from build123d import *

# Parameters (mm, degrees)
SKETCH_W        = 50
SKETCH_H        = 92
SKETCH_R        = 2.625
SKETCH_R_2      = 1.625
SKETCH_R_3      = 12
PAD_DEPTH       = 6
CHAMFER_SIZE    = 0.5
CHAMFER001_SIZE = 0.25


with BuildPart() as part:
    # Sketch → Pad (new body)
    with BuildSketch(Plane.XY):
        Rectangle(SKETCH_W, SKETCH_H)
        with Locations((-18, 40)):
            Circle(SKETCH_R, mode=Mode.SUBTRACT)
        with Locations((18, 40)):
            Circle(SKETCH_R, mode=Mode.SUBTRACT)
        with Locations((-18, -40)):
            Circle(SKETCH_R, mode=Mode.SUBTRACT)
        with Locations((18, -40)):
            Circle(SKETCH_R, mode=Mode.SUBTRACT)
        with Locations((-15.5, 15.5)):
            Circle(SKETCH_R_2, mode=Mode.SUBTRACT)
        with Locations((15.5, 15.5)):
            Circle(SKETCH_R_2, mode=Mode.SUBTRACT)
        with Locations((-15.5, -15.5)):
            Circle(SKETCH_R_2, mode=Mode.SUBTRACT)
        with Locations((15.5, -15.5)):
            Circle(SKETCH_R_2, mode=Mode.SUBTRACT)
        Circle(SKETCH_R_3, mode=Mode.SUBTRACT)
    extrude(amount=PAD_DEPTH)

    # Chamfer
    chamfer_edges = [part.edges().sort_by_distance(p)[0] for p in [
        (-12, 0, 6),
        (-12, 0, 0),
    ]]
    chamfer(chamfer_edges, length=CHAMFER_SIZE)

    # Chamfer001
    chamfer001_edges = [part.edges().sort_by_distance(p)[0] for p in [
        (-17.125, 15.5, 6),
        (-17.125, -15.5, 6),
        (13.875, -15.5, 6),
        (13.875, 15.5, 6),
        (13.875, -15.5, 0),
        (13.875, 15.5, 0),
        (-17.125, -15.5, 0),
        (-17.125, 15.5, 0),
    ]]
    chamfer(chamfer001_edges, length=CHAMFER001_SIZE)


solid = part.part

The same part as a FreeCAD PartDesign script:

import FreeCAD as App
import Part
import Sketcher
Q = App.Units.Quantity


def edges_at(feature, points):
    """Names of the edges that pass closest to the given points."""
    edges = feature.Shape.Edges
    near = lambda p: min(range(len(edges)), key=lambda i: edges[i].distToShape(Part.Vertex(*p))[0])
    return sorted({f"Edge{near(p) + 1}" for p in points})


def add_polygon(sketch, points):
    """Adds a closed chain of lines whose ends are joined by coincident constraints."""
    first, n = sketch.GeometryCount, len(points)
    for a, b in zip(points, points[1:] + points[:1]):
        sketch.addGeometry(Part.LineSegment(App.Vector(*a, 0), App.Vector(*b, 0)), False)
    for i in range(n):
        sketch.addConstraint(Sketcher.Constraint("Coincident", first + i, 2, first + (i + 1) % n, 1))

doc = App.newDocument("Part")
params = doc.addObject("Spreadsheet::Sheet", "Params")
for row, (alias, value) in enumerate([
    ("sketch1_diameter", "24 mm"),
    ("sketch1_diameter2", "5.25 mm"),
    ("sketch1_diameter3", "3.25 mm"),
    ("sketch1_width", "50 mm"),
    ("sketch1_height", "92 mm"),
    ("pad1_length", "6 mm"),
    ("chamfer_size", "0.5 mm"),
    ("chamfer2_size", "0.25 mm"),
], start=1):
    params.set(f"A{row}", alias)
    params.set(f"B{row}", "=" + value)
    params.setAlias(f"B{row}", alias)

body = doc.addObject("PartDesign::Body", "Body")

# Sketch on XY plane
sketch1 = body.newObject("Sketcher::SketchObject", "Sketch")
sketch1.AttachmentSupport = (doc.getObject("XY_Plane"), [""])
sketch1.MapMode = "FlatFace"
add_polygon(sketch1, [(-25, 46), (-25, -46), (25, -46), (25, 46)])  # lines 0-3
sketch1.addGeometry(Part.Circle(App.Vector(-18, -40, 0), App.Vector(0, 0, 1), 2.6), False)  # 4
sketch1.addGeometry(Part.Circle(App.Vector(-15.5, -15.5, 0), App.Vector(0, 0, 1), 1.6), False)  # 5
sketch1.addGeometry(Part.Circle(App.Vector(18, -40, 0), App.Vector(0, 0, 1), 2.6), False)  # 6
sketch1.addGeometry(Part.Circle(App.Vector(15.5, -15.5, 0), App.Vector(0, 0, 1), 1.6), False)  # 7
sketch1.addGeometry(Part.Circle(App.Vector(-15.5, 15.5, 0), App.Vector(0, 0, 1), 1.6), False)  # 8
sketch1.addGeometry(Part.Circle(App.Vector(-18, 40, 0), App.Vector(0, 0, 1), 2.6), False)  # 9
sketch1.addGeometry(Part.Circle(App.Vector(0, 0, 0), App.Vector(0, 0, 1), 12), False)  # 10
sketch1.addGeometry(Part.Circle(App.Vector(15.5, 15.5, 0), App.Vector(0, 0, 1), 1.6), False)  # 11
sketch1.addGeometry(Part.Circle(App.Vector(18, 40, 0), App.Vector(0, 0, 1), 2.6), False)  # 12
sketch1.addConstraint(Sketcher.Constraint("Vertical", 0))
sketch1.addConstraint(Sketcher.Constraint("Horizontal", 1))
sketch1.addConstraint(Sketcher.Constraint("Vertical", 2))
sketch1.addConstraint(Sketcher.Constraint("Horizontal", 3))
sketch1.addConstraint(Sketcher.Constraint("Coincident", 10, 3, -1, 1))
sketch1.addConstraint(Sketcher.Constraint("Equal", 4, 6))
sketch1.addConstraint(Sketcher.Constraint("Equal", 5, 7))
sketch1.addConstraint(Sketcher.Constraint("Equal", 7, 8))
sketch1.addConstraint(Sketcher.Constraint("Equal", 6, 9))
sketch1.addConstraint(Sketcher.Constraint("Equal", 8, 11))
sketch1.addConstraint(Sketcher.Constraint("Equal", 9, 12))
sketch1.addConstraint(Sketcher.Constraint("Symmetric", 7, 3, 8, 3, -1, 1))
sketch1.addConstraint(Sketcher.Constraint("Symmetric", 6, 3, 9, 3, -1, 1))
sketch1.addConstraint(Sketcher.Constraint("Symmetric", 5, 3, 11, 3, -1, 1))
sketch1.addConstraint(Sketcher.Constraint("Symmetric", 4, 3, 12, 3, -1, 1))
sketch1.addConstraint(Sketcher.Constraint("Symmetric", 0, 2, 2, 2, -1, 1))
sketch1.addConstraint(Sketcher.Constraint("Symmetric", 4, 3, 6, 3, -2))
sketch1.addConstraint(Sketcher.Constraint("Symmetric", 5, 3, 7, 3, -2))
sketch1.addConstraint(Sketcher.Constraint("Diameter", 10, Q("24 mm")))
sketch1.addConstraint(Sketcher.Constraint("Diameter", 4, Q("5.25 mm")))
sketch1.addConstraint(Sketcher.Constraint("Diameter", 5, Q("3.25 mm")))
sketch1.addConstraint(Sketcher.Constraint("DistanceX", 1, 1, 1, 2, Q("50 mm")))
sketch1.addConstraint(Sketcher.Constraint("DistanceY", 0, 2, 0, 1, Q("92 mm")))
sketch1.addConstraint(Sketcher.Constraint("DistanceX", 4, 3, -1, 1, Q("18 mm")))
sketch1.addConstraint(Sketcher.Constraint("DistanceY", 4, 3, -1, 1, Q("40 mm")))
sketch1.addConstraint(Sketcher.Constraint("DistanceX", 5, 3, 7, 3, Q("31 mm")))
sketch1.addConstraint(Sketcher.Constraint("DistanceY", 5, 3, 8, 3, Q("31 mm")))
sketch1.setExpression("Constraints[22]", "Params.sketch1_diameter")
sketch1.setExpression("Constraints[23]", "Params.sketch1_diameter2")
sketch1.setExpression("Constraints[24]", "Params.sketch1_diameter3")
sketch1.setExpression("Constraints[25]", "Params.sketch1_width")
sketch1.setExpression("Constraints[26]", "Params.sketch1_height")
pad1 = body.newObject("PartDesign::Pad", "Pad")
pad1.Profile = sketch1
pad1.setExpression("Length", "Params.pad1_length")
doc.recompute()

chamfer = body.newObject("PartDesign::Chamfer", "Chamfer")
chamfer.Base = (pad1, edges_at(pad1, [(-12, 0, 6), (-12, 0, 0)]))
chamfer.setExpression("Size", "Params.chamfer_size")
doc.recompute()

chamfer2 = body.newObject("PartDesign::Chamfer", "Chamfer001")
chamfer2.Base = (chamfer, edges_at(chamfer, [
    (-17.125, 15.5, 6),
    (-17.125, -15.5, 6),
    (13.875, -15.5, 6),
    (13.875, 15.5, 6),
    (13.875, -15.5, 0),
    (13.875, 15.5, 0),
    (-17.125, -15.5, 0),
    (-17.125, 15.5, 0),
]))
chamfer2.setExpression("Size", "Params.chamfer2_size")

doc.recompute()
